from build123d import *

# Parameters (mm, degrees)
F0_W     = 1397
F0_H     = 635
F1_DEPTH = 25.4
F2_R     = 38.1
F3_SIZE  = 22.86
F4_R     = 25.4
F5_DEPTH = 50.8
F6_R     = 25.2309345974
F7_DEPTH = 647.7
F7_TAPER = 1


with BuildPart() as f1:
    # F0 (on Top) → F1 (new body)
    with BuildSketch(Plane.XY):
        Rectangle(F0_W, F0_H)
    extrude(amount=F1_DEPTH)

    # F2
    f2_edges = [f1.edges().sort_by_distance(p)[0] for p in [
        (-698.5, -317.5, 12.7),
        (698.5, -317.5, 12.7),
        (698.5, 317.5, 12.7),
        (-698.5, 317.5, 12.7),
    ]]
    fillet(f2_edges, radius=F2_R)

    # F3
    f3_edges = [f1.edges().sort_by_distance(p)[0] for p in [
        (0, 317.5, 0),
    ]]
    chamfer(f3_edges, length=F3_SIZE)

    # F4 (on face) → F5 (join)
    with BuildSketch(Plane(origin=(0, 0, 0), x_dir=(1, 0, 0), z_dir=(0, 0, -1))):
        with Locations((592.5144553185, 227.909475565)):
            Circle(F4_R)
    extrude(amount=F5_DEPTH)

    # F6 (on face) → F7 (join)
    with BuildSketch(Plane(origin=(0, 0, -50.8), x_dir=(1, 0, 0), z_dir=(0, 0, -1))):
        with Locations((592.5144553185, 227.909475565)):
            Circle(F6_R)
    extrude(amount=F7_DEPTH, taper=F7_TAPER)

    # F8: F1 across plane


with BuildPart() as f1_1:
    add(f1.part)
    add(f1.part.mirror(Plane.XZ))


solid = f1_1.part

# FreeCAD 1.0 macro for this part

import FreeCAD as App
import Part
import Sketcher

V = App.Vector
Q = App.Units.Quantity


def edges_at(feature, points):
    """Names of the edges that pass closest to the given points."""
    edges = feature.Shape.Edges
    near = lambda p: min(range(len(edges)), key=lambda i: edges[i].distToShape(Part.Vertex(*p))[0])
    return sorted({f"Edge{near(p) + 1}" for p in points})


def add_polygon(sketch, points):
    """Adds a closed chain of lines whose ends are joined by coincident constraints."""
    first, n = sketch.GeometryCount, len(points)
    for a, b in zip(points, points[1:] + points[:1]):
        sketch.addGeometry(Part.LineSegment(App.Vector(*a, 0), App.Vector(*b, 0)), False)
    for i in range(n):
        sketch.addConstraint(Sketcher.Constraint("Coincident", first + i, 2, first + (i + 1) % n, 1))

doc = App.newDocument("Part")
body = doc.addObject("PartDesign::Body", "Body")

# Sketch on XY plane
sketch1 = body.newObject("Sketcher::SketchObject", "Sketch")
sketch1.AttachmentSupport = (doc.getObject("XY_Plane"), [""])
sketch1.MapMode = "FlatFace"
add_polygon(sketch1, [(-698, 318), (-698, -318), (698, -318), (698, 318)])  # lines 0-3
sketch1.addConstraint(Sketcher.Constraint("Vertical", 0))
sketch1.addConstraint(Sketcher.Constraint("Horizontal", 1))
sketch1.addConstraint(Sketcher.Constraint("Vertical", 2))
sketch1.addConstraint(Sketcher.Constraint("Horizontal", 3))
sketch1.addConstraint(Sketcher.Constraint("Symmetric", 0, 2, 2, 2, -1, 1))
sketch1.addConstraint(Sketcher.Constraint("DistanceX", 1, 1, 1, 2, Q("55 in")))
sketch1.addConstraint(Sketcher.Constraint("DistanceY", 0, 2, 0, 1, Q("25 in")))
pad1 = body.newObject("PartDesign::Pad", "Pad")
pad1.Profile = sketch1
pad1.Length = Q("1 in")
doc.recompute()

fillet = body.newObject("PartDesign::Fillet", "Fillet")
fillet.Base = (pad1, edges_at(pad1, [
    (-698.5, -317.5, 12.7),
    (698.5, -317.5, 12.7),
    (698.5, 317.5, 12.7),
    (-698.5, 317.5, 12.7),
]))
fillet.Radius = Q("1.5 in")
doc.recompute()

chamfer = body.newObject("PartDesign::Chamfer", "Chamfer")
chamfer.Base = (fillet, edges_at(fillet, [(0, 317.5, 0)]))
chamfer.Size = Q("0.9 in")

# Sketch on XY plane
sketch2 = body.newObject("Sketcher::SketchObject", "Sketch001")
sketch2.AttachmentSupport = (doc.getObject("XY_Plane"), [""])
sketch2.MapMode = "FlatFace"
sketch2.addGeometry(Part.Circle(V(593, -228, 0), V(0, 0, 1), 25), False)
sketch2.addConstraint(Sketcher.Constraint("Diameter", 0, Q("2 in")))
sketch2.addConstraint(Sketcher.Constraint("DistanceX", -1, 1, 0, 3, Q("592.514455 mm")))
sketch2.addConstraint(Sketcher.Constraint("DistanceY", 0, 3, -1, 1, Q("227.909476 mm")))
pad2 = body.newObject("PartDesign::Pad", "Pad001")
pad2.Profile = sketch2
pad2.Length = Q("2 in")
pad2.Reversed = True

# Sketch on XY plane
sketch3 = body.newObject("Sketcher::SketchObject", "Sketch002")
sketch3.AttachmentSupport = (doc.getObject("XY_Plane"), [""])
sketch3.MapMode = "FlatFace"
sketch3.AttachmentOffset = App.Placement(V(0, 0, -2 * 25.4), App.Rotation())
sketch3.addGeometry(Part.Circle(V(593, -228, 0), V(0, 0, 1), 25), False)
sketch3.addConstraint(Sketcher.Constraint("Diameter", 0, Q("50.461869 mm")))
sketch3.addConstraint(Sketcher.Constraint("DistanceX", -1, 1, 0, 3, Q("592.514455 mm")))
sketch3.addConstraint(Sketcher.Constraint("DistanceY", 0, 3, -1, 1, Q("227.909476 mm")))
pad3 = body.newObject("PartDesign::Pad", "Pad002")
pad3.Profile = sketch3
pad3.Length = Q("25.5 in")
pad3.Reversed = True
pad3.TaperAngle = -1
body2 = doc.addObject("PartDesign::Body", "Body001")
doc.recompute()

body2.BaseFeature = body
doc.recompute()

mirroring = doc.addObject("Part::Mirroring", "Mirroring")
mirroring.Source = body
mirroring.Base = V(0, 0, 0)
mirroring.Normal = V(0, -1, 0)
body3 = doc.addObject("PartDesign::Body", "Body002")
body3.BaseFeature = mirroring
boolean = body2.newObject("PartDesign::Boolean", "Boolean")
boolean.Type = "Fuse"
boolean.addObjects([body3])
doc.recompute()
mirroring.Visibility = False

doc.recompute()
